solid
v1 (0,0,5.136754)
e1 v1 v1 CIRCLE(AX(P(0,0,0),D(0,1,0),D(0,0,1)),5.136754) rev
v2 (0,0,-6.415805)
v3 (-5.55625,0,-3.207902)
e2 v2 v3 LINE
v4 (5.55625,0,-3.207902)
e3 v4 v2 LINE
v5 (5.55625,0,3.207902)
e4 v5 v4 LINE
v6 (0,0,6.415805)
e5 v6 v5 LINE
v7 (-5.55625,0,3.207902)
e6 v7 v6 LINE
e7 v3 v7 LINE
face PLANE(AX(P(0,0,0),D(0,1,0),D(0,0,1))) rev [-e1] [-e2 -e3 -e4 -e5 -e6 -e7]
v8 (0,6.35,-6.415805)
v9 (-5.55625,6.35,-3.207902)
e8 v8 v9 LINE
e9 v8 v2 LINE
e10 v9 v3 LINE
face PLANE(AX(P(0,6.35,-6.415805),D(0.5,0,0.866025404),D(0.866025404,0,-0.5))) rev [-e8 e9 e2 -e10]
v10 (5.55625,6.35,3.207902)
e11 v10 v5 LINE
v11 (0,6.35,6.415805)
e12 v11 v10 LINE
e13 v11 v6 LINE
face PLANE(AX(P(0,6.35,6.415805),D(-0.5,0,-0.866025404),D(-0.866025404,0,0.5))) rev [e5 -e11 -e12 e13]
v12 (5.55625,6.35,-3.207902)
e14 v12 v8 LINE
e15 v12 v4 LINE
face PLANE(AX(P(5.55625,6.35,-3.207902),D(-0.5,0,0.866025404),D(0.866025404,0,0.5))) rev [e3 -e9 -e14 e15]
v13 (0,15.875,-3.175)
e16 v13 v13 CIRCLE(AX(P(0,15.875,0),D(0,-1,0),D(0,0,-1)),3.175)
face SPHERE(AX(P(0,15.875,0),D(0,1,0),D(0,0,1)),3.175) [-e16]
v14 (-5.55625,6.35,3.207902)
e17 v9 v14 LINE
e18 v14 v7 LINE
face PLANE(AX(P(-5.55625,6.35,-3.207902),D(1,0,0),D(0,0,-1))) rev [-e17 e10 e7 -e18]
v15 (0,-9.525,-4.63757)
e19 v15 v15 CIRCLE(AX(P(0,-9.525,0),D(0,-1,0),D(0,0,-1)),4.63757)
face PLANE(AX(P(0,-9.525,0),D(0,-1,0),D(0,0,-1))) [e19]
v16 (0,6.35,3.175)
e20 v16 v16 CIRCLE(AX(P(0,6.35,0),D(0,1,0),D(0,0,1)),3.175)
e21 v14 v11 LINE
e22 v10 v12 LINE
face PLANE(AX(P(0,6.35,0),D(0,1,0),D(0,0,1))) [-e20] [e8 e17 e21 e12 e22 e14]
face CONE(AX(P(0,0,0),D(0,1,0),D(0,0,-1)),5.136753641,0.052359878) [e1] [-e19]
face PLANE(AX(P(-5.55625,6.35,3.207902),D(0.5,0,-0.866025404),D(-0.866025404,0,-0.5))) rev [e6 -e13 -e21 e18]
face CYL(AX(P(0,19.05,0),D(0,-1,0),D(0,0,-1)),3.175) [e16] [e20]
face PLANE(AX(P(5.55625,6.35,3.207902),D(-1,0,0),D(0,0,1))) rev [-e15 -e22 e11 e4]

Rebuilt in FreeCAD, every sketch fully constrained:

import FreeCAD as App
import Part
import Sketcher
Q = App.Units.Quantity


def edges_at(feature, points):
    """Names of the edges that pass closest to the given points."""
    edges = feature.Shape.Edges
    near = lambda p: min(range(len(edges)), key=lambda i: edges[i].distToShape(Part.Vertex(*p))[0])
    return sorted({f"Edge{near(p) + 1}" for p in points})

doc = App.newDocument("Part")
body = doc.addObject("PartDesign::Body", "Body")

# Sketch on XZ plane
sketch1 = body.newObject("Sketcher::SketchObject", "Sketch")
sketch1.AttachmentSupport = (doc.getObject("XZ_Plane"), [""])
sketch1.MapMode = "FlatFace"
sketch1.addGeometry([
    Part.LineSegment(App.Vector(6, -3, 0), App.Vector(0, -6, 0)),  # 0
    Part.LineSegment(App.Vector(0, -6, 0), App.Vector(-6, -3, 0)),  # 1
    Part.LineSegment(App.Vector(-6, -3, 0), App.Vector(-6, 3, 0)),  # 2
    Part.LineSegment(App.Vector(-6, 3, 0), App.Vector(0, 6, 0)),  # 3
    Part.LineSegment(App.Vector(0, 6, 0), App.Vector(6, 3, 0)),  # 4
    Part.LineSegment(App.Vector(6, 3, 0), App.Vector(6, -3, 0)),  # 5
], False)
sketch1.addConstraint([
    Sketcher.Constraint("Coincident", 0, 2, 1, 1),
    Sketcher.Constraint("Coincident", 1, 2, 2, 1),
    Sketcher.Constraint("Coincident", 2, 2, 3, 1),
    Sketcher.Constraint("Coincident", 3, 2, 4, 1),
    Sketcher.Constraint("Coincident", 4, 2, 5, 1),
    Sketcher.Constraint("Coincident", 5, 2, 0, 1),
    Sketcher.Constraint("Vertical", 2),
    Sketcher.Constraint("Vertical", 5),
    Sketcher.Constraint("Symmetric", 0, 2, 3, 2, -1, 1),
    Sketcher.Constraint("Symmetric", 1, 2, 4, 2, -1, 1),
    Sketcher.Constraint("PointOnObject", 0, 2, -2),
    Sketcher.Constraint("Parallel", 0, 3),
    Sketcher.Constraint("Horizontal", 2, 2, 4, 2),
    Sketcher.Constraint("Angle", 0, Q("-150 deg")),
    Sketcher.Constraint("DistanceX", 1, 2, -1, 1, Q("0.21875 in")),
    Sketcher.Constraint("DistanceY", 2, 1, 2, 2, 6.415805),
])
pad1 = body.newObject("PartDesign::Pad", "Pad")
pad1.Profile = sketch1
pad1.Length = Q("0.25 in")
pad1.Reversed = True

# Sketch on XZ plane
sketch2 = body.newObject("Sketcher::SketchObject", "Sketch001")
sketch2.AttachmentSupport = (doc.getObject("XZ_Plane"), [""])
sketch2.MapMode = "FlatFace"
sketch2.AttachmentOffset = App.Placement(App.Vector(0, 0, -0.25 * 25.4), App.Rotation())
sketch2.addGeometry(Part.Circle(App.Vector(0, 0, 0), App.Vector(0, 0, 1), 3.2), False)
sketch2.addConstraint([
    Sketcher.Constraint("Coincident", 0, 3, -1, 1),
    Sketcher.Constraint("Diameter", 0, Q("0.25 in")),
])
pad2 = body.newObject("PartDesign::Pad", "Pad001")
pad2.Profile = sketch2
pad2.Length = Q("0.5 in")
pad2.Reversed = True
doc.recompute()

fillet = body.newObject("PartDesign::Fillet", "Fillet")
fillet.Base = (pad2, edges_at(pad2, [(0, 19.05, -3.175)]))
fillet.Radius = Q("0.125 in")

# Sketch on XZ plane
sketch3 = body.newObject("Sketcher::SketchObject", "Sketch002")
sketch3.AttachmentSupport = (doc.getObject("XZ_Plane"), [""])
sketch3.MapMode = "FlatFace"
sketch3.addGeometry(Part.Circle(App.Vector(0, 0, 0), App.Vector(0, 0, 1), 5), False)
sketch3.addConstraint([
    Sketcher.Constraint("Coincident", 0, 3, -1, 1),
    Sketcher.Constraint("Diameter", 0, 10.273507),
])
pad3 = body.newObject("PartDesign::Pad", "Pad002")
pad3.Profile = sketch3
pad3.Length = Q("0.375 in")
pad3.TaperAngle = -3

doc.recompute()
